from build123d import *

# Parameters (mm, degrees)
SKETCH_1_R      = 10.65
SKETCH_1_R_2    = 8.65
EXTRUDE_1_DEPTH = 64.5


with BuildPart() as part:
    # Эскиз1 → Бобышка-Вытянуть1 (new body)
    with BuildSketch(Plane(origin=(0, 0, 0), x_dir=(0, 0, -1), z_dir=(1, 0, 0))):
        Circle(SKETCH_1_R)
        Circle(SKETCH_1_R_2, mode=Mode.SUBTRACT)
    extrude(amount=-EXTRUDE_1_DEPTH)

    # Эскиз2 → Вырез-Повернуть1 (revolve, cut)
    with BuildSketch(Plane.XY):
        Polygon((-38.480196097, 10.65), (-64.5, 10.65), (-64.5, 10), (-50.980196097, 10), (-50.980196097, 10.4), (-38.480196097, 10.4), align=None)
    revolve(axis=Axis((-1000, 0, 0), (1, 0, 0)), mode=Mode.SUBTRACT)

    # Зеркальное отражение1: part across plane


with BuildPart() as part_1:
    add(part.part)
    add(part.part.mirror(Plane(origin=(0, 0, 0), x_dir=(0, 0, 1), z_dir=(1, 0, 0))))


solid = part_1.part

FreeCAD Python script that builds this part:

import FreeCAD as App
import Part
import Sketcher

V = App.Vector


def add_polygon(sketch, points):
    """Adds a closed chain of lines whose ends are joined by coincident constraints."""
    first, n = sketch.GeometryCount, len(points)
    for a, b in zip(points, points[1:] + points[:1]):
        sketch.addGeometry(Part.LineSegment(App.Vector(*a, 0), App.Vector(*b, 0)), False)
    for i in range(n):
        sketch.addConstraint(Sketcher.Constraint("Coincident", first + i, 2, first + (i + 1) % n, 1))

doc = App.newDocument("Part")
body = doc.addObject("PartDesign::Body", "Body")

# Sketch on YZ plane
sketch1 = body.newObject("Sketcher::SketchObject", "Sketch")
sketch1.AttachmentSupport = (doc.getObject("YZ_Plane"), [""])
sketch1.MapMode = "FlatFace"
sketch1.addGeometry([
    Part.Circle(V(0, 0, 0), V(0, 0, 1), 10.65),
    Part.Circle(V(0, 0, 0), V(0, 0, 1), 8.65),
], False)
sketch1.addConstraint([
    Sketcher.Constraint("Coincident", 0, 3, -1, 1),
    Sketcher.Constraint("Coincident", 1, 3, -1, 1),
    Sketcher.Constraint("Diameter", 0, 21.3),
    Sketcher.Constraint("Diameter", 1, 17.3),
])
pad1 = body.newObject("PartDesign::Pad", "Pad")
pad1.Profile = sketch1
pad1.Length = 64.5
pad1.Reversed = True

# Sketch on XY plane
sketch2 = body.newObject("Sketcher::SketchObject", "Sketch001")
sketch2.AttachmentSupport = (doc.getObject("XY_Plane"), [""])
sketch2.MapMode = "FlatFace"
add_polygon(sketch2, [(-38.480196, 10.65), (-64.5, 10.65), (-64.5, 10), (-50.980196, 10), (-50.980196, 10.4), (-38.480196, 10.4)])  # lines 0-5
sketch2.addConstraint([
    Sketcher.Constraint("Horizontal", 0),
    Sketcher.Constraint("Vertical", 1),
    Sketcher.Constraint("Horizontal", 2),
    Sketcher.Constraint("Vertical", 3),
    Sketcher.Constraint("Horizontal", 4),
    Sketcher.Constraint("Vertical", 5),
    Sketcher.Constraint("DistanceX", 4, 1, 4, 2, 12.5),
    Sketcher.Constraint("DistanceY", 3, 1, 3, 2, 0.4),
    Sketcher.Constraint("DistanceY", -1, 1, 1, 2, 10.0),
    Sketcher.Constraint("DistanceY", 1, 2, 1, 1, 0.65),
    Sketcher.Constraint("DistanceX", 0, 2, -1, 1, 64.5),
    Sketcher.Constraint("DistanceX", 0, 2, 0, 1, 26.019804),
])
groove = body.newObject("PartDesign::Groove", "Groove")
groove.Profile = sketch2
groove.ReferenceAxis = (sketch2, ["H_Axis"])
groove.Angle = 360
body2 = doc.addObject("PartDesign::Body", "Body001")
doc.recompute()

body2.BaseFeature = body
doc.recompute()

mirroring = doc.addObject("Part::Mirroring", "Mirroring")
mirroring.Source = body
mirroring.Base = V(0, 0, 0)
mirroring.Normal = V(1, 0, 0)
body3 = doc.addObject("PartDesign::Body", "Body002")
body3.BaseFeature = mirroring
boolean = body2.newObject("PartDesign::Boolean", "Boolean")
boolean.Type = "Fuse"
boolean.addObjects([body3])
doc.recompute()
mirroring.Visibility = False

doc.recompute()
